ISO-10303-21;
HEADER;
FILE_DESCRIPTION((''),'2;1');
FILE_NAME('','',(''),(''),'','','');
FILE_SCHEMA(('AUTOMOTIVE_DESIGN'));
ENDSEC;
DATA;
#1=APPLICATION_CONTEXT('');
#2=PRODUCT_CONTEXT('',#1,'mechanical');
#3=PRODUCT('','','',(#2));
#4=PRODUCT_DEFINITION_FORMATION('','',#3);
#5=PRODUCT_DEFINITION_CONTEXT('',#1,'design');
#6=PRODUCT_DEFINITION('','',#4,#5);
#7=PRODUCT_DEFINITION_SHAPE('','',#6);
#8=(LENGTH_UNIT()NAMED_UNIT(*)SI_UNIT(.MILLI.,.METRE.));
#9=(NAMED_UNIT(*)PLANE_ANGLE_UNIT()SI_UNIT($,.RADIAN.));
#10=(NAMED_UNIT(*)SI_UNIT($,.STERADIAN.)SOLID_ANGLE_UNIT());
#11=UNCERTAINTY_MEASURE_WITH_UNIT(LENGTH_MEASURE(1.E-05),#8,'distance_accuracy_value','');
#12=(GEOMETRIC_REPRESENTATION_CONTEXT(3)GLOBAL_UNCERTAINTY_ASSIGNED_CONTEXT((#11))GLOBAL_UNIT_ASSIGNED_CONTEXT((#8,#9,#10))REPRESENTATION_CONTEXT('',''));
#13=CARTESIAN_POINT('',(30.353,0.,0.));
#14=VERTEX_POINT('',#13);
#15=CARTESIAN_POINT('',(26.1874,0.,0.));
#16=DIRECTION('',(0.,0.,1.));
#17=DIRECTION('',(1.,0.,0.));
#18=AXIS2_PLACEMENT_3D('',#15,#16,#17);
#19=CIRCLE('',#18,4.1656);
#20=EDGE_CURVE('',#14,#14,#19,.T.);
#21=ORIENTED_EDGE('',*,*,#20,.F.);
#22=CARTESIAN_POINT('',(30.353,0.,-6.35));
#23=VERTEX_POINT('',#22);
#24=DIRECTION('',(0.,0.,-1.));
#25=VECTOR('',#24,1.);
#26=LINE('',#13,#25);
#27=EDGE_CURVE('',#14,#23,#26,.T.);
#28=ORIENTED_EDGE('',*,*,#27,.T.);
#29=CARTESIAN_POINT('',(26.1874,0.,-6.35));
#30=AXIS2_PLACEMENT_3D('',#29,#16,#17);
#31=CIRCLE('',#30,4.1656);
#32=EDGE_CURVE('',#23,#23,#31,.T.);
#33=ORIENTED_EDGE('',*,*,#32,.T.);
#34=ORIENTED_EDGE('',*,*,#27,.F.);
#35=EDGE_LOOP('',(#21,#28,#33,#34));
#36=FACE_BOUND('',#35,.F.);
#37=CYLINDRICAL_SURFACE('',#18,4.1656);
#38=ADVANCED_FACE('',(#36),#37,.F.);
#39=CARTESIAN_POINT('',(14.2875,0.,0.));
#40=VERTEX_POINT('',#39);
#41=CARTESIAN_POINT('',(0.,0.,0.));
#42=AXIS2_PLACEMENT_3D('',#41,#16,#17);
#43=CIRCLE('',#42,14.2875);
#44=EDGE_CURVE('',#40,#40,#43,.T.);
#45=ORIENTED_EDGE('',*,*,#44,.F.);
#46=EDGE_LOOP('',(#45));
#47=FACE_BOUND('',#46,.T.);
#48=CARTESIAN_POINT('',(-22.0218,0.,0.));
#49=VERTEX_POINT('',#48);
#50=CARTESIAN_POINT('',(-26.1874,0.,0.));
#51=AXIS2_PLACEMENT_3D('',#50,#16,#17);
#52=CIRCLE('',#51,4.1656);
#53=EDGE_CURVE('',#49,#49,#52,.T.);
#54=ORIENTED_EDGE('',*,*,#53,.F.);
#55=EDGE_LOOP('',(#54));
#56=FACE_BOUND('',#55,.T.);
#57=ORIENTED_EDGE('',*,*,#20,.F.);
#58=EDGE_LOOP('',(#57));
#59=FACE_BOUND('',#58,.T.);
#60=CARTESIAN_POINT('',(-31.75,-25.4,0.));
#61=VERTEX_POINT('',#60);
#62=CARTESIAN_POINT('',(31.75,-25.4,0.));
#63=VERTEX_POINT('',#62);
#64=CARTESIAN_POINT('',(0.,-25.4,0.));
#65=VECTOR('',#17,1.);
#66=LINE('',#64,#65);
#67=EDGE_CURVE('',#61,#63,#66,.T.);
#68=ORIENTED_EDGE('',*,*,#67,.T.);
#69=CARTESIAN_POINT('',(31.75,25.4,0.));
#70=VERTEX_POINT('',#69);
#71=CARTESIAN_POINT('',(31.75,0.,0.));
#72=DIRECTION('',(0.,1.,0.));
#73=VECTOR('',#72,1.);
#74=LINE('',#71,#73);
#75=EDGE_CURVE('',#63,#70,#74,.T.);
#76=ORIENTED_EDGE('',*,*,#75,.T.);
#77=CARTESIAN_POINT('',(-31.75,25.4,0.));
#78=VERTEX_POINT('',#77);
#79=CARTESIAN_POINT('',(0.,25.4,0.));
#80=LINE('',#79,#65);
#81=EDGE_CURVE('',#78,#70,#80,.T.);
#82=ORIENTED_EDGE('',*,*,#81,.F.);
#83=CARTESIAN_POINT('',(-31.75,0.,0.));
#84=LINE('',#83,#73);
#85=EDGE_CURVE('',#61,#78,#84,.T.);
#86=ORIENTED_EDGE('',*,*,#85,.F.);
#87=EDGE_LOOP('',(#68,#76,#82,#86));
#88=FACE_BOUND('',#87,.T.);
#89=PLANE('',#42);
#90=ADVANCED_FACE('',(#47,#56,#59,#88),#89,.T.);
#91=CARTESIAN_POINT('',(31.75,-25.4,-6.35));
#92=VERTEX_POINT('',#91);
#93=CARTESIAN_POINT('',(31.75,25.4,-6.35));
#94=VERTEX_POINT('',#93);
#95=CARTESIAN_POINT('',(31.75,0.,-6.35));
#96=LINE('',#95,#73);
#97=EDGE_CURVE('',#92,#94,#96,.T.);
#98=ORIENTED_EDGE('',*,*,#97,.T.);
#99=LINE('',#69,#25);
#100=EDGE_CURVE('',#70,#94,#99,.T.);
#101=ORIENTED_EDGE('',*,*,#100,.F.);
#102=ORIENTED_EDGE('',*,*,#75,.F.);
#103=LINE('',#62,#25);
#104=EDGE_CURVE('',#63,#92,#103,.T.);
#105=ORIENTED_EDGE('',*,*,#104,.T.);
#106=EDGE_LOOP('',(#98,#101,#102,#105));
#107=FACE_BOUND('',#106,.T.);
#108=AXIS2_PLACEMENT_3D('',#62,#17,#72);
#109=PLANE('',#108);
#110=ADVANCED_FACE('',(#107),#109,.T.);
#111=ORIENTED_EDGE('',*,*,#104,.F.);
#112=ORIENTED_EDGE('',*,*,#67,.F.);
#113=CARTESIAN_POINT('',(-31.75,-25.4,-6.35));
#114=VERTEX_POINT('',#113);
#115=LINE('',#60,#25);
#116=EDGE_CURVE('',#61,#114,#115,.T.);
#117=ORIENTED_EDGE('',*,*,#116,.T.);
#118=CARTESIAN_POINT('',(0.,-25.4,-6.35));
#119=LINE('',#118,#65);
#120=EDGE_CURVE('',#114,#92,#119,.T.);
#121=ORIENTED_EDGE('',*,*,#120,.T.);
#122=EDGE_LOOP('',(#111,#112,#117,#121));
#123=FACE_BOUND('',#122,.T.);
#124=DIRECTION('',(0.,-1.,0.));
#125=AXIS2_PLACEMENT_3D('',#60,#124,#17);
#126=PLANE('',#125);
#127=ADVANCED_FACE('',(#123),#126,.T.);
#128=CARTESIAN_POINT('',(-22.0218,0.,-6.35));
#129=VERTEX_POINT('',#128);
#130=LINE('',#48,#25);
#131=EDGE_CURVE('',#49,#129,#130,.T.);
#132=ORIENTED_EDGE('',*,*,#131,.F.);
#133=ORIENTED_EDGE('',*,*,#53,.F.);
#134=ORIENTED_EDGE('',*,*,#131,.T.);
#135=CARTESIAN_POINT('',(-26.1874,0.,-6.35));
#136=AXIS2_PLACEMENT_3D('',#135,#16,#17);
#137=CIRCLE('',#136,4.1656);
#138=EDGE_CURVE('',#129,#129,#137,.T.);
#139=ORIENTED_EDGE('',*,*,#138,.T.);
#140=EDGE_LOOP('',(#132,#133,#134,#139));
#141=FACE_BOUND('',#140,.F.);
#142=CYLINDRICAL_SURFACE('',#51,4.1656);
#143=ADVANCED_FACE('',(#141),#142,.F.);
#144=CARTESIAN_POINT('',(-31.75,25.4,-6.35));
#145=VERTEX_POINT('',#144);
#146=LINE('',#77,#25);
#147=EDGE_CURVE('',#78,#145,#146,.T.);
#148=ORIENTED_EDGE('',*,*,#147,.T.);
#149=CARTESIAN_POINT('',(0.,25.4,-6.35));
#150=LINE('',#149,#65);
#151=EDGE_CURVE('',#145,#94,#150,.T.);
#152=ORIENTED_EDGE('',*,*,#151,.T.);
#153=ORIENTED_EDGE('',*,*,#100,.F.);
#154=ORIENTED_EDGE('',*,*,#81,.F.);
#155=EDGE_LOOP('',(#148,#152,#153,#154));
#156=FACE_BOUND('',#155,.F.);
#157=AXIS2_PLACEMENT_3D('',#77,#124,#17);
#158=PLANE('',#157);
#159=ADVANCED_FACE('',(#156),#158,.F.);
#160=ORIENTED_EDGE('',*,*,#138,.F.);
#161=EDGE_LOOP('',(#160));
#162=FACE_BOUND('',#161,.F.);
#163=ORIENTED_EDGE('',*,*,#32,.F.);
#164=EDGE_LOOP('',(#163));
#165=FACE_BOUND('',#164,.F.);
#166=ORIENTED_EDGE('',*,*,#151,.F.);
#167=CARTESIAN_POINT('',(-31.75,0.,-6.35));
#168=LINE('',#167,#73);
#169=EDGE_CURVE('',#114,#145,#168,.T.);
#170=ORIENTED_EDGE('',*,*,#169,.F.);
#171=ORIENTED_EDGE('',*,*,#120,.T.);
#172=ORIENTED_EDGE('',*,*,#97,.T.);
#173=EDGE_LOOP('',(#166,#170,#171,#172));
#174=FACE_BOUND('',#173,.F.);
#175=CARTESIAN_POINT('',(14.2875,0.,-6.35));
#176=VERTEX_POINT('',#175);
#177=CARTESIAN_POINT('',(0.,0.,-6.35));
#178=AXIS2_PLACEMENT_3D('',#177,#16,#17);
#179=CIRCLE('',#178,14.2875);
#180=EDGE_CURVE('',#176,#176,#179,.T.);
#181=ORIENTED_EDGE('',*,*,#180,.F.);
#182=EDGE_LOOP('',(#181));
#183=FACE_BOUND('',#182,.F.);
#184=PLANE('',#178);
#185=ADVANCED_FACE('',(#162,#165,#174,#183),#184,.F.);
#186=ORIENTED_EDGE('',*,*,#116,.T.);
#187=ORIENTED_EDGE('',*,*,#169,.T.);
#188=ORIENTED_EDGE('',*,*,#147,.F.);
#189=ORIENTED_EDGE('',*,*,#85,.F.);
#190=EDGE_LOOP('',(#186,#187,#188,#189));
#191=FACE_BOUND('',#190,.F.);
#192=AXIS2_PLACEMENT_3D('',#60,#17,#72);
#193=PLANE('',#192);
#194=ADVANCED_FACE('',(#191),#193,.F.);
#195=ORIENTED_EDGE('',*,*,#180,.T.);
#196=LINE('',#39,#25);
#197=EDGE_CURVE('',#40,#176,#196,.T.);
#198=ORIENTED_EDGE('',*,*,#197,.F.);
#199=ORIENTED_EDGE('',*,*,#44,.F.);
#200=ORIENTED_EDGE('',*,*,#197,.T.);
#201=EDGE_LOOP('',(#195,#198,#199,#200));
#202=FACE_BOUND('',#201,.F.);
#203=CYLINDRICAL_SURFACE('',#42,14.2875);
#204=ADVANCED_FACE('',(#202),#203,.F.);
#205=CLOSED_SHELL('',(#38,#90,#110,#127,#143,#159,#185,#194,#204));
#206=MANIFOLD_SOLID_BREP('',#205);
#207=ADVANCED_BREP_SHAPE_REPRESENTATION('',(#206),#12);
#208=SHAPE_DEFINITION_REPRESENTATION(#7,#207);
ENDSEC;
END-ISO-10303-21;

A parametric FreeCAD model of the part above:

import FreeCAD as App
import Part
import Sketcher

V = App.Vector
Q = App.Units.Quantity

doc = App.newDocument("Part")
body = doc.addObject("PartDesign::Body", "Body")

sketch1 = body.newObject("Sketcher::SketchObject", "Sketch")
sketch1.AttachmentSupport = (doc.getObject("XY_Plane"), [""])
sketch1.MapMode = "FlatFace"
sketch1.addGeometry(Part.LineSegment(V(-31.8, 25.4, 0), V(-31.8, -25.4, 0)), False)
sketch1.addGeometry(Part.LineSegment(V(-31.8, -25.4, 0), V(31.8, -25.4, 0)), False)
sketch1.addGeometry(Part.LineSegment(V(31.8, -25.4, 0), V(31.8, 25.4, 0)), False)
sketch1.addGeometry(Part.LineSegment(V(31.8, 25.4, 0), V(-31.8, 25.4, 0)), False)
sketch1.addGeometry(Part.Circle(V(-26.2, 0, 0), V(0, 0, 1), 4.2), False)
sketch1.addGeometry(Part.Circle(V(0, 0, 0), V(0, 0, 1), 14.3), False)
sketch1.addGeometry(Part.Circle(V(26.2, 0, 0), V(0, 0, 1), 4.2), False)
sketch1.addConstraint(Sketcher.Constraint("Coincident", 0, 2, 1, 1))
sketch1.addConstraint(Sketcher.Constraint("Coincident", 1, 2, 2, 1))
sketch1.addConstraint(Sketcher.Constraint("Coincident", 2, 2, 3, 1))
sketch1.addConstraint(Sketcher.Constraint("Coincident", 3, 2, 0, 1))
sketch1.addConstraint(Sketcher.Constraint("Vertical", 0))
sketch1.addConstraint(Sketcher.Constraint("Horizontal", 1))
sketch1.addConstraint(Sketcher.Constraint("Vertical", 2))
sketch1.addConstraint(Sketcher.Constraint("Horizontal", 3))
sketch1.addConstraint(Sketcher.Constraint("Coincident", 5, 3, -1, 1))
sketch1.addConstraint(Sketcher.Constraint("Equal", 4, 6))
sketch1.addConstraint(Sketcher.Constraint("Symmetric", 4, 3, 6, 3, -1, 1))
sketch1.addConstraint(Sketcher.Constraint("Symmetric", 0, 2, 2, 2, -1, 1))
sketch1.addConstraint(Sketcher.Constraint("PointOnObject", 4, 3, -1))
sketch1.addConstraint(Sketcher.Constraint("DistanceY", 0, 2, 0, 1, Q("2 in")))
sketch1.addConstraint(Sketcher.Constraint("Diameter", 4, Q("0.328 in")))
sketch1.addConstraint(Sketcher.Constraint("Diameter", 5, Q("1.125 in")))
sketch1.addConstraint(Sketcher.Constraint("DistanceX", 1, 1, 1, 2, Q("2.5 in")))
sketch1.addConstraint(Sketcher.Constraint("DistanceX", 4, 3, -1, 1, Q("1.031 in")))
pad1 = body.newObject("PartDesign::Pad", "Pad")
pad1.Profile = sketch1
pad1.Length = Q("0.25 in")
pad1.Reversed = True

doc.recompute()
